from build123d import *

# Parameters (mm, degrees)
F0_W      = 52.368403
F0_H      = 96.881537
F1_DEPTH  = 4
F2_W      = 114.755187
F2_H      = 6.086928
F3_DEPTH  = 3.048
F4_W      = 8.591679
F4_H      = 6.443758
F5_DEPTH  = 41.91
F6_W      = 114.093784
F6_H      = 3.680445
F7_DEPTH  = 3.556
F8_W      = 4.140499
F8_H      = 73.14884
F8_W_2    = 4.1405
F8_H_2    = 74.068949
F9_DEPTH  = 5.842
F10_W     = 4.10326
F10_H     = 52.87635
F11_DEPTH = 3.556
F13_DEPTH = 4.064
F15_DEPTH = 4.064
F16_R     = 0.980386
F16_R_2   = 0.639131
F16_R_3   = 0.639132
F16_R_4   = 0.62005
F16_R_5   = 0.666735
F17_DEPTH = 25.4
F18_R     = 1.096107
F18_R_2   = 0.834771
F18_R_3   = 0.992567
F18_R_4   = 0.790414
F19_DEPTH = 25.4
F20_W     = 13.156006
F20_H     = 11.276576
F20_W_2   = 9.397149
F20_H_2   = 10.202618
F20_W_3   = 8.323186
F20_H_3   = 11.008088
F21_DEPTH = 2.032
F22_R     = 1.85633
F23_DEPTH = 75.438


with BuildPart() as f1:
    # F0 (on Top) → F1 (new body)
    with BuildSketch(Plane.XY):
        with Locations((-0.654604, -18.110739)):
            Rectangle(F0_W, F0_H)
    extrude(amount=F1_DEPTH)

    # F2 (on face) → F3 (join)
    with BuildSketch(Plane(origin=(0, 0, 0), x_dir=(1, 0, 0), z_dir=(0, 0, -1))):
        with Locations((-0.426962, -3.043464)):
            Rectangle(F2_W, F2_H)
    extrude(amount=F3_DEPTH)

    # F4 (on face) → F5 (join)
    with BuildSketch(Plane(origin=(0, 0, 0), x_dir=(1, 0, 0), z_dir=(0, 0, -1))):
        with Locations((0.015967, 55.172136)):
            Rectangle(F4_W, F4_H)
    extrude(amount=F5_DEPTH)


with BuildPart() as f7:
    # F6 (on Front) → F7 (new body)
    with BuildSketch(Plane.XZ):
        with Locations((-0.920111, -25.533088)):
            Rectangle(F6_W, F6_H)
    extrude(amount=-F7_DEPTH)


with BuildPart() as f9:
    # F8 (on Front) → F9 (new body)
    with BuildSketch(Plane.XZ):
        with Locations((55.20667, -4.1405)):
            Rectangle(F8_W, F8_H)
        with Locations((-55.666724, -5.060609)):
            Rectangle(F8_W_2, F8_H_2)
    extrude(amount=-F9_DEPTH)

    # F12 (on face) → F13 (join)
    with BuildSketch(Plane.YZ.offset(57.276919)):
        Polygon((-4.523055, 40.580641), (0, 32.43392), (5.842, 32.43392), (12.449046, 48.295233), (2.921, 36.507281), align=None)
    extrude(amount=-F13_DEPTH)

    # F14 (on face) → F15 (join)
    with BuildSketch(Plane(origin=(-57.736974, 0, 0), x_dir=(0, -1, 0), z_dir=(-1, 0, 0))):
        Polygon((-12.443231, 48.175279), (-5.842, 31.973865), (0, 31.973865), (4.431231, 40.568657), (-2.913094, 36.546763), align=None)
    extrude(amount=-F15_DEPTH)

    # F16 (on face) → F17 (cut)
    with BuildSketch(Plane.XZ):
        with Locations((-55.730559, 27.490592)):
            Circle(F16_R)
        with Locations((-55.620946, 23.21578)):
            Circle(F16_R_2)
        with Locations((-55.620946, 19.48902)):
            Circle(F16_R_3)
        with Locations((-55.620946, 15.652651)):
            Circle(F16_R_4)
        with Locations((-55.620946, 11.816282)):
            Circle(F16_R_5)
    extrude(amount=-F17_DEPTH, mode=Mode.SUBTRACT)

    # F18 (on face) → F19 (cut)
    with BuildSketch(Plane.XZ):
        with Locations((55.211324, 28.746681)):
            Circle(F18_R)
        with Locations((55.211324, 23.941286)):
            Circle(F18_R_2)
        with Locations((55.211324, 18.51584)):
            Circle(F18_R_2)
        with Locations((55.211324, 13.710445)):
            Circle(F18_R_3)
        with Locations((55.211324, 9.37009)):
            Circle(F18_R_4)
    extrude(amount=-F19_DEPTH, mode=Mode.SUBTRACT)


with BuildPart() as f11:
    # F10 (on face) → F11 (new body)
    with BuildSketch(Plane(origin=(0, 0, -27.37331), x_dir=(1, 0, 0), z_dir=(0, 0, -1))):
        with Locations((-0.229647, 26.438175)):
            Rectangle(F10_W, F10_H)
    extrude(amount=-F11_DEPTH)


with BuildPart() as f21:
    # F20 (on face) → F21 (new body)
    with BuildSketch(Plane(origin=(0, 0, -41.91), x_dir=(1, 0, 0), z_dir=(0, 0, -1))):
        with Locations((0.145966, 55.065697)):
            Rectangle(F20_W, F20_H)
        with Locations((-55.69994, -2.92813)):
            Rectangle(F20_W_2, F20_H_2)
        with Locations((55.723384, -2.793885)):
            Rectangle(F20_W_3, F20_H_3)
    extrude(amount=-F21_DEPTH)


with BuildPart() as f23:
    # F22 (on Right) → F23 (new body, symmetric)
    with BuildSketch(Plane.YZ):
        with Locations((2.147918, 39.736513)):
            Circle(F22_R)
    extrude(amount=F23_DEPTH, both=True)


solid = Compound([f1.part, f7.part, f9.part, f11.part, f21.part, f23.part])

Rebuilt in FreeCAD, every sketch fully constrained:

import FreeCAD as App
import Part
import Sketcher
from FreeCAD import Vector
Q = App.Units.Quantity


def add_polygon(sketch, points):
    """Adds a closed chain of lines whose ends are joined by coincident constraints."""
    first, n = sketch.GeometryCount, len(points)
    for a, b in zip(points, points[1:] + points[:1]):
        sketch.addGeometry(Part.LineSegment(App.Vector(*a, 0), App.Vector(*b, 0)), False)
    for i in range(n):
        sketch.addConstraint(Sketcher.Constraint("Coincident", first + i, 2, first + (i + 1) % n, 1))

doc = App.newDocument("Part")
body = doc.addObject("PartDesign::Body", "Body")

# Sketch on XY plane
sketch1 = body.newObject("Sketcher::SketchObject", "Sketch")
sketch1.AttachmentSupport = (doc.getObject("XY_Plane"), [""])
sketch1.MapMode = "FlatFace"
add_polygon(sketch1, [(-27, 30), (-27, -67), (26, -67), (26, 30)])  # lines 0-3
sketch1.addConstraint([
    Sketcher.Constraint("Vertical", 0),
    Sketcher.Constraint("Horizontal", 1),
    Sketcher.Constraint("Vertical", 2),
    Sketcher.Constraint("Horizontal", 3),
    Sketcher.Constraint("DistanceX", 1, 1, 1, 2, Q("52.368403 mm")),
    Sketcher.Constraint("DistanceY", 0, 2, 0, 1, Q("96.881537 mm")),
    Sketcher.Constraint("DistanceY", -1, 1, 2, 2, Q("30.330029 mm")),
    Sketcher.Constraint("DistanceX", 0, 2, -1, 1, Q("26.838805 mm")),
])
pad1 = body.newObject("PartDesign::Pad", "Pad")
pad1.Profile = sketch1
pad1.Length = 4

# Sketch on XY plane
sketch2 = body.newObject("Sketcher::SketchObject", "Sketch001")
sketch2.AttachmentSupport = (doc.getObject("XY_Plane"), [""])
sketch2.MapMode = "FlatFace"
add_polygon(sketch2, [(-58, 0), (-58, 6), (57, 6), (57, 0)])  # lines 0-3
sketch2.addConstraint([
    Sketcher.Constraint("Vertical", 0),
    Sketcher.Constraint("Horizontal", 1),
    Sketcher.Constraint("Vertical", 2),
    Sketcher.Constraint("Horizontal", 3),
    Sketcher.Constraint("PointOnObject", 2, 2, -1),
    Sketcher.Constraint("DistanceY", 0, 1, 0, 2, Q("6.086928 mm")),
    Sketcher.Constraint("DistanceX", 1, 1, 1, 2, Q("114.755187 mm")),
    Sketcher.Constraint("DistanceX", -1, 1, 1, 2, Q("56.950632 mm")),
])
pad2 = body.newObject("PartDesign::Pad", "Pad001")
pad2.Profile = sketch2
pad2.Length = Q("0.12 in")
pad2.Reversed = True

# Sketch on XY plane
sketch3 = body.newObject("Sketcher::SketchObject", "Sketch002")
sketch3.AttachmentSupport = (doc.getObject("XY_Plane"), [""])
sketch3.MapMode = "FlatFace"
add_polygon(sketch3, [(-4, -58), (-4, -52), (4, -52), (4, -58)])  # lines 0-3
sketch3.addConstraint([
    Sketcher.Constraint("Vertical", 0),
    Sketcher.Constraint("Horizontal", 1),
    Sketcher.Constraint("Vertical", 2),
    Sketcher.Constraint("Horizontal", 3),
    Sketcher.Constraint("DistanceX", 1, 1, 1, 2, Q("8.591679 mm")),
    Sketcher.Constraint("DistanceY", 0, 1, 0, 2, Q("6.443758 mm")),
    Sketcher.Constraint("DistanceX", 0, 2, -1, 1, Q("4.279872 mm")),
    Sketcher.Constraint("DistanceY", 0, 2, -1, 1, Q("51.950257 mm")),
])
pad3 = body.newObject("PartDesign::Pad", "Pad002")
pad3.Profile = sketch3
pad3.Length = Q("1.65 in")
pad3.Reversed = True
body2 = doc.addObject("PartDesign::Body", "Body001")

# Sketch on XZ plane
sketch4 = body2.newObject("Sketcher::SketchObject", "Sketch003")
sketch4.AttachmentSupport = (doc.getObject("XZ_Plane001"), [""])
sketch4.MapMode = "FlatFace"
add_polygon(sketch4, [(-58, -23.7), (-58, -27.4), (56.1, -27.4), (56.1, -23.7)])  # lines 0-3
sketch4.addConstraint([
    Sketcher.Constraint("Vertical", 0),
    Sketcher.Constraint("Horizontal", 1),
    Sketcher.Constraint("Vertical", 2),
    Sketcher.Constraint("Horizontal", 3),
    Sketcher.Constraint("DistanceX", 1, 1, 1, 2, Q("114.093784 mm")),
    Sketcher.Constraint("DistanceY", 0, 2, 0, 1, Q("3.680445 mm")),
    Sketcher.Constraint("DistanceY", 0, 2, -1, 1, Q("27.37331 mm")),
    Sketcher.Constraint("DistanceX", -1, 1, 1, 2, Q("56.126781 mm")),
])
pad4 = body2.newObject("PartDesign::Pad", "Pad003")
pad4.Profile = sketch4
pad4.Length = Q("0.14 in")
pad4.Reversed = True
body3 = doc.addObject("PartDesign::Body", "Body002")
body3.AllowCompound = True

# Sketch on XZ plane
sketch5 = body3.newObject("Sketcher::SketchObject", "Sketch004")
sketch5.AttachmentSupport = (doc.getObject("XZ_Plane002"), [""])
sketch5.MapMode = "FlatFace"
add_polygon(sketch5, [(53.1, 32.4), (53.1, -40.7), (57.3, -40.7), (57.3, 32.4)])  # lines 0-3
add_polygon(sketch5, [(-57.7, 32), (-57.7, -42.1), (-53.6, -42.1), (-53.6, 32)])  # lines 4-7
sketch5.addConstraint([
    Sketcher.Constraint("Vertical", 0),
    Sketcher.Constraint("Horizontal", 1),
    Sketcher.Constraint("Vertical", 2),
    Sketcher.Constraint("Horizontal", 3),
    Sketcher.Constraint("Vertical", 4),
    Sketcher.Constraint("Horizontal", 5),
    Sketcher.Constraint("Vertical", 6),
    Sketcher.Constraint("Horizontal", 7),
    Sketcher.Constraint("Equal", 3, 5),
    Sketcher.Constraint("DistanceX", 1, 1, 1, 2, Q("4.140499 mm")),
    Sketcher.Constraint("DistanceY", 0, 2, 0, 1, Q("73.14884 mm")),
    Sketcher.Constraint("DistanceY", 4, 2, 4, 1, Q("74.068949 mm")),
    Sketcher.Constraint("DistanceX", -1, 1, 0, 2, Q("53.13642 mm")),
    Sketcher.Constraint("DistanceY", 0, 2, -1, 1, Q("40.71492 mm")),
    Sketcher.Constraint("DistanceX", 4, 2, -1, 1, Q("57.736974 mm")),
    Sketcher.Constraint("DistanceY", 4, 2, -1, 1, Q("42.095084 mm")),
])
pad5 = body3.newObject("PartDesign::Pad", "Pad004")
pad5.Profile = sketch5
pad5.Length = Q("0.23 in")
pad5.Reversed = True

# Sketch on YZ plane
sketch6 = body3.newObject("Sketcher::SketchObject", "Sketch005")
sketch6.AttachmentSupport = (doc.getObject("YZ_Plane002"), [""])
sketch6.MapMode = "FlatFace"
sketch6.AttachmentOffset = App.Placement(Vector(0, 0, 57.276919), App.Rotation())
add_polygon(sketch6, [(-5, 41), (0, 32), (6, 32), (12, 48), (3, 37)])  # lines 0-4
sketch6.addConstraint([
    Sketcher.Constraint("Horizontal", 1),
    Sketcher.Constraint("PointOnObject", 0, 2, -2),
    Sketcher.Constraint("DistanceX", 1, 1, 1, 2, Q("0.23 in")),
    Sketcher.Constraint("DistanceX", -1, 1, 3, 2, Q("0.115 in")),
    Sketcher.Constraint("DistanceX", 4, 2, 2, 2, Q("16.972101 mm")),
    Sketcher.Constraint("Distance", 3, Q("15.157159 mm")),
    Sketcher.Constraint("DistanceY", -1, 1, 0, 2, Q("32.43392 mm")),
    Sketcher.Constraint("DistanceY", -1, 1, 3, 2, Q("36.507281 mm")),
    Sketcher.Constraint("DistanceY", -1, 1, 4, 2, Q("40.580641 mm")),
    Sketcher.Constraint("Distance", 0, Q("9.318105 mm")),
])
pad6 = body3.newObject("PartDesign::Pad", "Pad005")
pad6.Profile = sketch6
pad6.Length = Q("0.16 in")
pad6.Reversed = True

# Sketch on YZ plane
sketch7 = body3.newObject("Sketcher::SketchObject", "Sketch006")
sketch7.AttachmentSupport = (doc.getObject("YZ_Plane002"), [""])
sketch7.MapMode = "FlatFace"
sketch7.AttachmentOffset = App.Placement(Vector(0, 0, -57.736974), App.Rotation())
add_polygon(sketch7, [(12, 48), (6, 32), (0, 32), (-4, 41), (3, 37)])  # lines 0-4
sketch7.addConstraint([
    Sketcher.Constraint("Horizontal", 1),
    Sketcher.Constraint("PointOnObject", 1, 2, -2),
    Sketcher.Constraint("DistanceX", 1, 2, 1, 1, Q("0.23 in")),
    Sketcher.Constraint("Distance", 0, Q("17.49463 mm")),
    Sketcher.Constraint("DistanceX", 2, 2, -1, 1, Q("4.431231 mm")),
    Sketcher.Constraint("DistanceX", -1, 1, 4, 2, Q("12.443231 mm")),
    Sketcher.Constraint("DistanceY", -1, 1, 4, 2, Q("48.175279 mm")),
    Sketcher.Constraint("Distance", 2, Q("9.669863 mm")),
    Sketcher.Constraint("Distance", 3, Q("8.373455 mm")),
    Sketcher.Constraint("Distance", 4, Q("15.034823 mm")),
])
pad7 = body3.newObject("PartDesign::Pad", "Pad006")
pad7.Profile = sketch7
pad7.Length = Q("0.16 in")

# Sketch on XZ plane
sketch8 = body3.newObject("Sketcher::SketchObject", "Sketch007")
sketch8.AttachmentSupport = (doc.getObject("XZ_Plane002"), [""])
sketch8.MapMode = "FlatFace"
sketch8.addGeometry([
    Part.Circle(Vector(-55.7, 27.5, 0), Vector(0, 0, 1), 1),  # 0
    Part.Circle(Vector(-55.6, 23.2, 0), Vector(0, 0, 1), 0.6),  # 1
    Part.Circle(Vector(-55.6, 19.5, 0), Vector(0, 0, 1), 0.6),  # 2
    Part.Circle(Vector(-55.6, 15.7, 0), Vector(0, 0, 1), 0.6),  # 3
    Part.Circle(Vector(-55.6, 11.8, 0), Vector(0, 0, 1), 0.7),  # 4
], False)
sketch8.addConstraint([
    Sketcher.Constraint("Equal", 1, 2),
    Sketcher.Constraint("Vertical", 1, 3, 2, 3),
    Sketcher.Constraint("Vertical", 2, 3, 3, 3),
    Sketcher.Constraint("Vertical", 3, 3, 4, 3),
    Sketcher.Constraint("Diameter", 3, Q("1.2401 mm")),
    Sketcher.Constraint("Diameter", 4, Q("1.33347 mm")),
    Sketcher.Constraint("Diameter", 0, Q("1.960772 mm")),
    Sketcher.Constraint("Diameter", 1, Q("1.278262 mm")),
    Sketcher.Constraint("DistanceX", 0, 3, -1, 1, Q("55.730559 mm")),
    Sketcher.Constraint("DistanceY", -1, 1, 0, 3, Q("27.490592 mm")),
    Sketcher.Constraint("DistanceY", -1, 1, 1, 3, Q("23.21578 mm")),
    Sketcher.Constraint("DistanceY", -1, 1, 2, 3, Q("19.48902 mm")),
    Sketcher.Constraint("DistanceY", -1, 1, 3, 3, Q("15.652651 mm")),
    Sketcher.Constraint("DistanceY", -1, 1, 4, 3, Q("11.816282 mm")),
    Sketcher.Constraint("DistanceX", 1, 3, -1, 1, Q("55.620946 mm")),
])
pocket1 = body3.newObject("PartDesign::Pocket", "Pocket")
pocket1.Profile = sketch8
pocket1.Length = Q("1 in")

# Sketch on XZ plane
sketch9 = body3.newObject("Sketcher::SketchObject", "Sketch008")
sketch9.AttachmentSupport = (doc.getObject("XZ_Plane002"), [""])
sketch9.MapMode = "FlatFace"
sketch9.addGeometry([
    Part.Circle(Vector(55.2, 28.7, 0), Vector(0, 0, 1), 1.1),  # 0
    Part.Circle(Vector(55.2, 23.9, 0), Vector(0, 0, 1), 0.8),  # 1
    Part.Circle(Vector(55.2, 18.5, 0), Vector(0, 0, 1), 0.8),  # 2
    Part.Circle(Vector(55.2, 13.7, 0), Vector(0, 0, 1), 1),  # 3
    Part.Circle(Vector(55.2, 9.4, 0), Vector(0, 0, 1), 0.8),  # 4
], False)
sketch9.addConstraint([
    Sketcher.Constraint("Equal", 1, 2),
    Sketcher.Constraint("Vertical", 0, 3, 1, 3),
    Sketcher.Constraint("Vertical", 1, 3, 2, 3),
    Sketcher.Constraint("Vertical", 2, 3, 3, 3),
    Sketcher.Constraint("Vertical", 3, 3, 4, 3),
    Sketcher.Constraint("Diameter", 0, Q("2.192214 mm")),
    Sketcher.Constraint("Diameter", 1, Q("1.669542 mm")),
    Sketcher.Constraint("Diameter", 3, Q("1.985134 mm")),
    Sketcher.Constraint("Diameter", 4, Q("1.580828 mm")),
    Sketcher.Constraint("DistanceY", -1, 1, 0, 3, Q("28.746681 mm")),
    Sketcher.Constraint("DistanceY", -1, 1, 2, 3, Q("18.51584 mm")),
    Sketcher.Constraint("DistanceY", -1, 1, 4, 3, Q("9.37009 mm")),
    Sketcher.Constraint("DistanceY", 3, 3, 1, 3, Q("10.230841 mm")),
    Sketcher.Constraint("DistanceX", -1, 1, 0, 3, Q("55.211324 mm")),
    Sketcher.Constraint("DistanceY", -1, 1, 1, 3, Q("23.941286 mm")),
])
pocket2 = body3.newObject("PartDesign::Pocket", "Pocket001")
pocket2.Profile = sketch9
pocket2.Length = Q("1 in")
body4 = doc.addObject("PartDesign::Body", "Body003")

# Sketch on XY plane
sketch10 = body4.newObject("Sketcher::SketchObject", "Sketch009")
sketch10.AttachmentSupport = (doc.getObject("XY_Plane003"), [""])
sketch10.MapMode = "FlatFace"
sketch10.AttachmentOffset = App.Placement(Vector(0, 0, -27.37331), App.Rotation())
add_polygon(sketch10, [(-2.3, -52.9), (-2.3, 0), (1.8, 0), (1.8, -52.9)])  # lines 0-3
sketch10.addConstraint([
    Sketcher.Constraint("Vertical", 0),
    Sketcher.Constraint("Horizontal", 1),
    Sketcher.Constraint("Vertical", 2),
    Sketcher.Constraint("Horizontal", 3),
    Sketcher.Constraint("PointOnObject", 0, 2, -1),
    Sketcher.Constraint("DistanceX", 1, 1, 1, 2, Q("4.10326 mm")),
    Sketcher.Constraint("DistanceY", 0, 1, 0, 2, Q("52.87635 mm")),
    Sketcher.Constraint("DistanceX", 0, 2, -1, 1, Q("2.281277 mm")),
])
pad8 = body4.newObject("PartDesign::Pad", "Pad007")
pad8.Profile = sketch10
pad8.Length = Q("0.14 in")
body5 = doc.addObject("PartDesign::Body", "Body004")
body5.AllowCompound = True

# Sketch on XY plane
sketch11 = body5.newObject("Sketcher::SketchObject", "Sketch010")
sketch11.AttachmentSupport = (doc.getObject("XY_Plane004"), [""])
sketch11.MapMode = "FlatFace"
sketch11.AttachmentOffset = App.Placement(Vector(0, 0, -1.65 * 25.4), App.Rotation())
add_polygon(sketch11, [(-6, -61), (-6, -49), (7, -49), (7, -61)])  # lines 0-3
add_polygon(sketch11, [(-60, -2), (-60, 8), (-51, 8), (-51, -2)])  # lines 4-7
add_polygon(sketch11, [(52, -3), (52, 8), (60, 8), (60, -3)])  # lines 8-11
sketch11.addConstraint([
    Sketcher.Constraint("Vertical", 0),
    Sketcher.Constraint("Horizontal", 1),
    Sketcher.Constraint("Vertical", 2),
    Sketcher.Constraint("Horizontal", 3),
    Sketcher.Constraint("Vertical", 4),
    Sketcher.Constraint("Horizontal", 5),
    Sketcher.Constraint("Vertical", 6),
    Sketcher.Constraint("Horizontal", 7),
    Sketcher.Constraint("Vertical", 8),
    Sketcher.Constraint("Horizontal", 9),
    Sketcher.Constraint("Vertical", 10),
    Sketcher.Constraint("Horizontal", 11),
    Sketcher.Constraint("DistanceX", 5, 1, 5, 2, Q("9.397149 mm")),
    Sketcher.Constraint("DistanceY", 4, 1, 4, 2, Q("10.202618 mm")),
    Sketcher.Constraint("DistanceY", 8, 1, 8, 2, Q("11.008088 mm")),
    Sketcher.Constraint("DistanceX", 1, 1, 1, 2, Q("13.156006 mm")),
    Sketcher.Constraint("DistanceX", 9, 1, 9, 2, Q("8.323186 mm")),
    Sketcher.Constraint("DistanceY", 0, 1, 0, 2, Q("11.276576 mm")),
    Sketcher.Constraint("DistanceY", 0, 2, -1, 1, Q("49.427409 mm")),
    Sketcher.Constraint("DistanceX", -1, 1, 1, 2, Q("6.723969 mm")),
    Sketcher.Constraint("DistanceY", -1, 1, 4, 2, Q("8.029439 mm")),
    Sketcher.Constraint("DistanceX", -1, 1, 8, 2, Q("51.561791 mm")),
    Sketcher.Constraint("DistanceY", -1, 1, 8, 2, Q("8.297929 mm")),
    Sketcher.Constraint("DistanceX", 5, 2, 0, 2, Q("44.569328 mm")),
])
pad9 = body5.newObject("PartDesign::Pad", "Pad008")
pad9.Profile = sketch11
pad9.Length = Q("0.08 in")
body6 = doc.addObject("PartDesign::Body", "Body005")

# Sketch on YZ plane
sketch12 = body6.newObject("Sketcher::SketchObject", "Sketch011")
sketch12.AttachmentSupport = (doc.getObject("YZ_Plane005"), [""])
sketch12.MapMode = "FlatFace"
sketch12.addGeometry(Part.Circle(Vector(2.1, 39.7, 0), Vector(0, 0, 1), 1.9), False)
sketch12.addConstraint([
    Sketcher.Constraint("Diameter", 0, Q("3.71266 mm")),
    Sketcher.Constraint("DistanceX", -1, 1, 0, 3, Q("2.147918 mm")),
    Sketcher.Constraint("DistanceY", -1, 1, 0, 3, Q("39.736513 mm")),
])
pad10 = body6.newObject("PartDesign::Pad", "Pad009")
pad10.Profile = sketch12
pad10.Length = Q("5.94 in")
pad10.Midplane = True

doc.recompute()
